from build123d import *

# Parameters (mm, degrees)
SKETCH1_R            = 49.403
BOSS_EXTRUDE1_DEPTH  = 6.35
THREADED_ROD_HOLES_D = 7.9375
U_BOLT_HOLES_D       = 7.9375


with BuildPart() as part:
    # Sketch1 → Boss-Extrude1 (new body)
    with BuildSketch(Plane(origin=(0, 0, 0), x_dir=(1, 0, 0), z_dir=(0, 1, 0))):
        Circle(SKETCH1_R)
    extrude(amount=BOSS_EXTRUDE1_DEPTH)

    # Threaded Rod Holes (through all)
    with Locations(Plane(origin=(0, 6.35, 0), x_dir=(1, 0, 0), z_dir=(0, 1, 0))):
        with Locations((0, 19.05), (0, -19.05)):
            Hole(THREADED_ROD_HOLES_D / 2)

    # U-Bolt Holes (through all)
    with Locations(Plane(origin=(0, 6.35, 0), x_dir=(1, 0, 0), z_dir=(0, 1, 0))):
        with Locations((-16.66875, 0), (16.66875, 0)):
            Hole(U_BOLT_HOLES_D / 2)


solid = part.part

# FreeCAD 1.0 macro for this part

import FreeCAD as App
import Part
import Sketcher

V = App.Vector
Q = App.Units.Quantity

doc = App.newDocument("Part")
body = doc.addObject("PartDesign::Body", "Body")

sketch1 = body.newObject("Sketcher::SketchObject", "Sketch")
sketch1.AttachmentSupport = (doc.getObject("XZ_Plane"), [""])
sketch1.MapMode = "FlatFace"
sketch1.addGeometry(Part.Circle(V(0, 0, 0), V(0, 0, 1), 49), False)
sketch1.addConstraint(Sketcher.Constraint("Coincident", 0, 3, -1, 1))
sketch1.addConstraint(Sketcher.Constraint("Diameter", 0, Q("3.89 in")))
pad1 = body.newObject("PartDesign::Pad", "Pad")
pad1.Profile = sketch1
pad1.Length = Q("0.25 in")
pad1.Reversed = True

sketch2 = body.newObject("Sketcher::SketchObject", "Sketch001")
sketch2.AttachmentSupport = (doc.getObject("XZ_Plane"), [""])
sketch2.MapMode = "FlatFace"
sketch2.AttachmentOffset = App.Placement(V(0, 0, -0.25 * 25.4), App.Rotation())
sketch2.addGeometry(Part.Circle(V(0, -19.1, 0), V(0, 0, 1), 4), False)
sketch2.addGeometry(Part.Circle(V(0, 19.1, 0), V(0, 0, 1), 4), False)
sketch2.addConstraint(Sketcher.Constraint("Equal", 0, 1))
sketch2.addConstraint(Sketcher.Constraint("Symmetric", 0, 3, 1, 3, -1, 1))
sketch2.addConstraint(Sketcher.Constraint("PointOnObject", 0, 3, -2))
sketch2.addConstraint(Sketcher.Constraint("Diameter", 0, Q("0.3125 in")))
sketch2.addConstraint(Sketcher.Constraint("DistanceY", 0, 3, 1, 3, Q("1.5 in")))
doc.recompute()
hole = body.newObject("PartDesign::Hole", "Hole")
hole.Profile = sketch2
hole.ThreadType = "None"
hole.Diameter = Q("0.3125 in")
hole.DepthType = "ThroughAll"
hole.Reversed = True

sketch3 = body.newObject("Sketcher::SketchObject", "Sketch002")
sketch3.AttachmentSupport = (doc.getObject("XZ_Plane"), [""])
sketch3.MapMode = "FlatFace"
sketch3.AttachmentOffset = App.Placement(V(0, 0, -0.25 * 25.4), App.Rotation())
sketch3.addGeometry(Part.Circle(V(-16.7, 0, 0), V(0, 0, 1), 4), False)
sketch3.addGeometry(Part.Circle(V(16.7, 0, 0), V(0, 0, 1), 4), False)
sketch3.addConstraint(Sketcher.Constraint("Equal", 0, 1))
sketch3.addConstraint(Sketcher.Constraint("Symmetric", 0, 3, 1, 3, -1, 1))
sketch3.addConstraint(Sketcher.Constraint("PointOnObject", 0, 3, -1))
sketch3.addConstraint(Sketcher.Constraint("Diameter", 0, Q("0.3125 in")))
sketch3.addConstraint(Sketcher.Constraint("DistanceX", 0, 3, -1, 1, Q("0.65625 in")))
doc.recompute()
hole2 = body.newObject("PartDesign::Hole", "Hole001")
hole2.Profile = sketch3
hole2.ThreadType = "None"
hole2.Diameter = Q("0.3125 in")
hole2.DepthType = "ThroughAll"
hole2.Reversed = True

doc.recompute()
